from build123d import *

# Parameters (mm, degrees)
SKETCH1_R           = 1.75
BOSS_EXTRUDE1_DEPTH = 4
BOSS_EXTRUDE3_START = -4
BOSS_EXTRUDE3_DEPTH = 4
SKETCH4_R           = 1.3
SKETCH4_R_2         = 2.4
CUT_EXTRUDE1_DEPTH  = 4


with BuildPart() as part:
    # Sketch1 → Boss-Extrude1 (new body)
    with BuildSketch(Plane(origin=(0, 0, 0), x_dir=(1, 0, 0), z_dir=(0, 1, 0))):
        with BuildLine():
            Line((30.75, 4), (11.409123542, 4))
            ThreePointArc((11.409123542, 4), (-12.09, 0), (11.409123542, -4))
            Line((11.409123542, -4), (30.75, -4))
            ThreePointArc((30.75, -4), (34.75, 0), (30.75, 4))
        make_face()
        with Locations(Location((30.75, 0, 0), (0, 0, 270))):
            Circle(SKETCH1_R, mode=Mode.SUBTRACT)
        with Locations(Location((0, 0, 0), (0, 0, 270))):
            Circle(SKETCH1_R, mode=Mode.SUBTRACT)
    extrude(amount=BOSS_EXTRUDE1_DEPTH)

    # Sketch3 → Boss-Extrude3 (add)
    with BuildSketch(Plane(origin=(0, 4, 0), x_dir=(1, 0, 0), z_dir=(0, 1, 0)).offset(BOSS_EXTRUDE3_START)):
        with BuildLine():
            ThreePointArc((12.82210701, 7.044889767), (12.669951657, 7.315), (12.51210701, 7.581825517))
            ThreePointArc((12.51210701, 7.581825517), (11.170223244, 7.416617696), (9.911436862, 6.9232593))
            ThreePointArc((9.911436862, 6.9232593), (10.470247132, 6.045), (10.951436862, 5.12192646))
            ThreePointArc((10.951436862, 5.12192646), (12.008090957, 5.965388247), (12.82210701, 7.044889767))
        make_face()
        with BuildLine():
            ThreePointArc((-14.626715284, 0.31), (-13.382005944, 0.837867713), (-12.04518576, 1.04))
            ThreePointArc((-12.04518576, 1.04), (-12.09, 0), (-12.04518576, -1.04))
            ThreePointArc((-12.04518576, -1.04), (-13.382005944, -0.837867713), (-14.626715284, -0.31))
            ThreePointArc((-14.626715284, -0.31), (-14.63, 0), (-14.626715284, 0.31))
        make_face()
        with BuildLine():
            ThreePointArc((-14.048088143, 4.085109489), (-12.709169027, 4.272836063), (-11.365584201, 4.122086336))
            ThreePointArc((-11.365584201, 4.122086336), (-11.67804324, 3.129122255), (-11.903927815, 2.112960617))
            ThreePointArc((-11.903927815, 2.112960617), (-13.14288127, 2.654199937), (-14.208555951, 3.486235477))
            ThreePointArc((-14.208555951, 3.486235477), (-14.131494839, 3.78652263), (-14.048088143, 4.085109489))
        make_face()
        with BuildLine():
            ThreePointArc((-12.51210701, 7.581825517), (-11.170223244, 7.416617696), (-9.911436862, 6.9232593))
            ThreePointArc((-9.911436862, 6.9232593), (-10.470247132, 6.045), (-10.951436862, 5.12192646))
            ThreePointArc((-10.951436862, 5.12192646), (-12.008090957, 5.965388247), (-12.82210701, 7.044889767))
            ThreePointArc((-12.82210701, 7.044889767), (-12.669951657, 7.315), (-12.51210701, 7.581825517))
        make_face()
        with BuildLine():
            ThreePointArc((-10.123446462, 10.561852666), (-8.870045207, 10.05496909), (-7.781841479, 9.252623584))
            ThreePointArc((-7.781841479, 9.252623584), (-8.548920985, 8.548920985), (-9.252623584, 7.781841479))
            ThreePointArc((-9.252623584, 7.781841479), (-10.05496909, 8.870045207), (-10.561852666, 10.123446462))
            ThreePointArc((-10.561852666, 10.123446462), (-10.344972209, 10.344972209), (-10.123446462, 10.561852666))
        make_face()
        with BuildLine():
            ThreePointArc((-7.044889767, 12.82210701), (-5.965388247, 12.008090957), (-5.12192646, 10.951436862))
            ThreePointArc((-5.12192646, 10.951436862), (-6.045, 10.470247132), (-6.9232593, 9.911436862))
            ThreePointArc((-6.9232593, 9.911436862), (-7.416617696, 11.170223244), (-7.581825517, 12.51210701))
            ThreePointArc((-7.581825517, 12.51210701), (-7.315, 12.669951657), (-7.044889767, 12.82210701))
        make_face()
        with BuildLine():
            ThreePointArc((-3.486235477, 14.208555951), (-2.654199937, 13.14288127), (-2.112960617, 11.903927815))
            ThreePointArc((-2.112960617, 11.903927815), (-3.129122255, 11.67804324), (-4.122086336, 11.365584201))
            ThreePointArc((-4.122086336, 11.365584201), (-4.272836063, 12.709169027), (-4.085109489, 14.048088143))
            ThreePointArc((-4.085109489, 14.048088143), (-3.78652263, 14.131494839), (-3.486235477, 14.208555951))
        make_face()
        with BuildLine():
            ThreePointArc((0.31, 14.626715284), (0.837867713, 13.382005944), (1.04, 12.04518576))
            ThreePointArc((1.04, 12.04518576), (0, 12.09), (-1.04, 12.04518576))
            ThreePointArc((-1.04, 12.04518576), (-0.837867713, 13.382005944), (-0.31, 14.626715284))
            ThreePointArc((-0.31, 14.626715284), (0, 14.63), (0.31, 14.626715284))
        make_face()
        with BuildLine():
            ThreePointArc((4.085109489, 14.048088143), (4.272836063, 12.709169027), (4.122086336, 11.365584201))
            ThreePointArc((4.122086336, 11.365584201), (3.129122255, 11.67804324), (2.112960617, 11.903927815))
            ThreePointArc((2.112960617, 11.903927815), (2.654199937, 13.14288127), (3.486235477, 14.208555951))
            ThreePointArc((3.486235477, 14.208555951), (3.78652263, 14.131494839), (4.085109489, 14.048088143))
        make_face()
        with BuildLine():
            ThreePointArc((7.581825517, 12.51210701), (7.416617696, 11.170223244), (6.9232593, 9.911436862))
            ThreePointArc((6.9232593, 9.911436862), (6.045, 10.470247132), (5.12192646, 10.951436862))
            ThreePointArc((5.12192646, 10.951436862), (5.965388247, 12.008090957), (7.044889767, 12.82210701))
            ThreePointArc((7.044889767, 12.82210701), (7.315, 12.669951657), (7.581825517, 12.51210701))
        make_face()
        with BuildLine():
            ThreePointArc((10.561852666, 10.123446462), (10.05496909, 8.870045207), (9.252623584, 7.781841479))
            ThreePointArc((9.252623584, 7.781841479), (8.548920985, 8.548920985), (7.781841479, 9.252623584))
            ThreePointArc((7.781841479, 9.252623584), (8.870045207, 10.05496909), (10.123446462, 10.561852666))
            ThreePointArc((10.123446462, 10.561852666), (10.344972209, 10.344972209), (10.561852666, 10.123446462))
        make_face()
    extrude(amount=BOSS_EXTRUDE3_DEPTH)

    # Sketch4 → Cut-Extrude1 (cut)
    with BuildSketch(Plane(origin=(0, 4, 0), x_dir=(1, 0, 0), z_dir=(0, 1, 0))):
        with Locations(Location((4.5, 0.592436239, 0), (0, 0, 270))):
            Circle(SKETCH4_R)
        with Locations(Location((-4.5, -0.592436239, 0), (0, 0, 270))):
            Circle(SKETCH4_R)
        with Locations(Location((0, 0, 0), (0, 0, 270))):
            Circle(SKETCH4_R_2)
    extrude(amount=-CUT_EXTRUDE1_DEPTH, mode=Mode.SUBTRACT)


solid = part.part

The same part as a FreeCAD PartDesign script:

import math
import FreeCAD as App
import Part
import Sketcher
from FreeCAD import Vector
Q = App.Units.Quantity

doc = App.newDocument("Part")
params = doc.addObject("Spreadsheet::Sheet", "Params")
for row, (alias, value) in enumerate([
    ("sketch1_radius", "4 mm"),
    ("sketch1_diameter", "3.5 mm"),
    ("sketch1_radius2", "12.09 mm"),
    ("pad1_length", "4 mm"),
    ("sketch2_radius", "5.4 mm"),
    ("sketch2_radius2", "14.630002 mm"),
    ("sketch2_radius3", "12.09 mm"),
    ("pad2_length", "4 mm"),
    ("sketch3_diameter", "2.6 mm"),
    ("sketch3_diameter2", "4.8 mm"),
    ("pocket1_length", "4 mm"),
], start=1):
    params.set(f"A{row}", alias)
    params.set(f"B{row}", "=" + value)
    params.setAlias(f"B{row}", alias)

body = doc.addObject("PartDesign::Body", "Body")

# Sketch on XZ plane
sketch1 = body.newObject("Sketcher::SketchObject", "Sketch")
sketch1.AttachmentSupport = (doc.getObject("XZ_Plane"), [""])
sketch1.MapMode = "FlatFace"
sketch1.addGeometry([
    Part.LineSegment(Vector(30.75, -4, 0), Vector(11.409124, -4, 0)),  # 0
    Part.ArcOfCircle(Part.Circle(Vector(0, 0, 0), Vector(0, 0, 1), 12.09), math.radians(19.320493), math.radians(340.679507)),  # 1
    Part.LineSegment(Vector(11.409124, 4, 0), Vector(30.75, 4, 0)),  # 2
    Part.ArcOfCircle(Part.Circle(Vector(30.75, 0, 0), Vector(0, 0, 1), 4), math.radians(-90), math.radians(90)),  # 3
    Part.Circle(Vector(0, 0, 0), Vector(0, 0, 1), 1.75),  # 4
    Part.Circle(Vector(30.75, 0, 0), Vector(0, 0, 1), 1.75),  # 5
], False)
sketch1.addConstraint([
    Sketcher.Constraint("Coincident", 0, 2, 1, 2),
    Sketcher.Constraint("Coincident", 1, 1, 2, 1),
    Sketcher.Constraint("Tangent", 2, 2, 3, 2),
    Sketcher.Constraint("Tangent", 3, 1, 0, 1),
    Sketcher.Constraint("Horizontal", 0),
    Sketcher.Constraint("Horizontal", 2),
    Sketcher.Constraint("Coincident", 1, 3, -1, 1),
    Sketcher.Constraint("Coincident", 4, 3, -1, 1),
    Sketcher.Constraint("Coincident", 5, 3, 3, 3),
    Sketcher.Constraint("Equal", 4, 5),
    Sketcher.Constraint("PointOnObject", 3, 3, -1),
    Sketcher.Constraint("Radius", 3, Q("4 mm")),
    Sketcher.Constraint("Diameter", 4, Q("3.5 mm")),
    Sketcher.Constraint("Radius", 1, Q("12.09 mm")),
    Sketcher.Constraint("DistanceX", -1, 1, 3, 3, Q("30.75 mm")),
])
sketch1.setExpression("Constraints[11]", "Params.sketch1_radius")
sketch1.setExpression("Constraints[12]", "Params.sketch1_diameter")
sketch1.setExpression("Constraints[13]", "Params.sketch1_radius2")
pad1 = body.newObject("PartDesign::Pad", "Pad")
pad1.Profile = sketch1
pad1.setExpression("Length", "Params.pad1_length")
pad1.Reversed = True

# Sketch on XZ plane
sketch2 = body.newObject("Sketcher::SketchObject", "Sketch001")
sketch2.AttachmentSupport = (doc.getObject("XZ_Plane"), [""])
sketch2.MapMode = "FlatFace"
sketch2.addGeometry([
    Part.ArcOfCircle(Part.Circle(Vector(-0.000002, 0.000001, 0), Vector(0, 0, 1), 14.630002), math.radians(-31.21415), math.radians(-28.78585)),  # 0
    Part.ArcOfCircle(Part.Circle(Vector(12.49582, -2.18185, 0), Vector(0, 0, 1), 5.4), math.radians(-118.593324), math.radians(-89.827194)),  # 1
    Part.ArcOfCircle(Part.Circle(Vector(0, 0, 0), Vector(0, 0, 1), 12.09), math.radians(-34.934768), math.radians(-25.065232)),  # 2
    Part.ArcOfCircle(Part.Circle(Vector(8.137448, -9.730773, 0), Vector(0, 0, 1), 5.4), math.radians(29.827194), math.radians(58.593324)),  # 3
    Part.ArcOfCircle(Part.Circle(Vector(-11.912623, 4.358373, 0), Vector(0, 0, 1), 5.4), math.radians(-120.172806), math.radians(-91.406676)),  # 4
    Part.ArcOfCircle(Part.Circle(Vector(0, 0, 0), Vector(0, 0, 1), 14.63), math.radians(178.78585), math.radians(181.21415)),  # 5
    Part.ArcOfCircle(Part.Circle(Vector(-11.912623, -4.358373, 0), Vector(0, 0, 1), 5.4), math.radians(91.406676), math.radians(120.172806)),  # 6
    Part.ArcOfCircle(Part.Circle(Vector(0, 0, 0), Vector(0, 0, 1), 12.09), math.radians(175.065232), math.radians(184.934768)),  # 7
    Part.ArcOfCircle(Part.Circle(Vector(-12.63474, 1.126651, 0), Vector(0, 0, 1), 5.4), math.radians(-105.172806), math.radians(-76.406676)),  # 8
    Part.ArcOfCircle(Part.Circle(Vector(0, 0, 0), Vector(0, 0, 1), 14.63), math.radians(-166.21415), math.radians(-163.78585)),  # 9
    Part.ArcOfCircle(Part.Circle(Vector(-10.37868, -7.293078, 0), Vector(0, 0, 1), 5.4), math.radians(106.406676), math.radians(135.172806)),  # 10
    Part.ArcOfCircle(Part.Circle(Vector(0, 0, 0), Vector(0, 0, 1), 12.09), math.radians(-169.934768), math.radians(-160.065232)),  # 11
    Part.ArcOfCircle(Part.Circle(Vector(-12.49582, -2.18185, 0), Vector(0, 0, 1), 5.4), math.radians(-90.172806), math.radians(-61.406676)),  # 12
    Part.ArcOfCircle(Part.Circle(Vector(0.000002, 0.000001, 0), Vector(0, 0, 1), 14.630002), math.radians(-151.21415), math.radians(-148.78585)),  # 13
    Part.ArcOfCircle(Part.Circle(Vector(-8.137448, -9.730773, 0), Vector(0, 0, 1), 5.4), math.radians(121.406676), math.radians(150.172806)),  # 14
    Part.ArcOfCircle(Part.Circle(Vector(0, 0, 0), Vector(0, 0, 1), 12.09), math.radians(-154.934768), math.radians(-145.065232)),  # 15
    Part.ArcOfCircle(Part.Circle(Vector(-11.505331, -5.341662, 0), Vector(0, 0, 1), 5.4), math.radians(-75.172806), math.radians(-46.406676)),  # 16
    Part.ArcOfCircle(Part.Circle(Vector(0, 0, 0), Vector(0, 0, 1), 14.63), math.radians(-136.21415), math.radians(-133.78585)),  # 17
    Part.ArcOfCircle(Part.Circle(Vector(-5.341662, -11.505331, 0), Vector(0, 0, 1), 5.4), math.radians(136.406676), math.radians(165.172806)),  # 18
    Part.ArcOfCircle(Part.Circle(Vector(0, 0, 0), Vector(0, 0, 1), 12.09), math.radians(-139.934768), math.radians(-130.065232)),  # 19
    Part.ArcOfCircle(Part.Circle(Vector(-9.730773, -8.137448, 0), Vector(0, 0, 1), 5.4), math.radians(-60.172806), math.radians(-31.406676)),  # 20
    Part.ArcOfCircle(Part.Circle(Vector(0.000001, 0.000002, 0), Vector(0, 0, 1), 14.630002), math.radians(-121.21415), math.radians(-118.78585)),  # 21
    Part.ArcOfCircle(Part.Circle(Vector(-2.18185, -12.49582, 0), Vector(0, 0, 1), 5.4), math.radians(151.406676), math.radians(180.172806)),  # 22
    Part.ArcOfCircle(Part.Circle(Vector(0, 0, 0), Vector(0, 0, 1), 12.09), math.radians(-124.934768), math.radians(-115.065232)),  # 23
    Part.ArcOfCircle(Part.Circle(Vector(-7.293078, -10.37868, 0), Vector(0, 0, 1), 5.4), math.radians(-45.172806), math.radians(-16.406676)),  # 24
    Part.ArcOfCircle(Part.Circle(Vector(0, 0, 0), Vector(0, 0, 1), 14.63), math.radians(-106.21415), math.radians(-103.78585)),  # 25
    Part.ArcOfCircle(Part.Circle(Vector(1.126651, -12.63474, 0), Vector(0, 0, 1), 5.4), math.radians(166.406676), math.radians(195.172806)),  # 26
    Part.ArcOfCircle(Part.Circle(Vector(0, 0, 0), Vector(0, 0, 1), 12.09), math.radians(-109.934768), math.radians(-100.065232)),  # 27
    Part.ArcOfCircle(Part.Circle(Vector(-4.358373, -11.912623, 0), Vector(0, 0, 1), 5.4), math.radians(-30.172806), math.radians(-1.406676)),  # 28
    Part.ArcOfCircle(Part.Circle(Vector(0, 0, 0), Vector(0, 0, 1), 14.63), math.radians(-91.21415), math.radians(-88.78585)),  # 29
    Part.ArcOfCircle(Part.Circle(Vector(4.358373, -11.912623, 0), Vector(0, 0, 1), 5.4), math.radians(-178.593324), math.radians(-149.827194)),  # 30
    Part.ArcOfCircle(Part.Circle(Vector(0, 0, 0), Vector(0, 0, 1), 12.09), math.radians(-94.934768), math.radians(-85.065232)),  # 31
    Part.ArcOfCircle(Part.Circle(Vector(-1.126651, -12.63474, 0), Vector(0, 0, 1), 5.4), math.radians(-15.172806), math.radians(13.593324)),  # 32
    Part.ArcOfCircle(Part.Circle(Vector(0, 0, 0), Vector(0, 0, 1), 14.63), math.radians(-76.21415), math.radians(-73.78585)),  # 33
    Part.ArcOfCircle(Part.Circle(Vector(7.293078, -10.37868, 0), Vector(0, 0, 1), 5.4), math.radians(-163.593324), math.radians(-134.827194)),  # 34
    Part.ArcOfCircle(Part.Circle(Vector(0, 0, 0), Vector(0, 0, 1), 12.09), math.radians(-79.934768), math.radians(-70.065232)),  # 35
    Part.ArcOfCircle(Part.Circle(Vector(2.18185, -12.49582, 0), Vector(0, 0, 1), 5.4), math.radians(-0.172806), math.radians(28.593324)),  # 36
    Part.ArcOfCircle(Part.Circle(Vector(-0.000001, 0.000002, 0), Vector(0, 0, 1), 14.630002), math.radians(-61.21415), math.radians(-58.78585)),  # 37
    Part.ArcOfCircle(Part.Circle(Vector(9.730773, -8.137448, 0), Vector(0, 0, 1), 5.4), math.radians(-148.593324), math.radians(-119.827194)),  # 38
    Part.ArcOfCircle(Part.Circle(Vector(0, 0, 0), Vector(0, 0, 1), 12.09), math.radians(-64.934768), math.radians(-55.065232)),  # 39
    Part.ArcOfCircle(Part.Circle(Vector(5.341662, -11.505331, 0), Vector(0, 0, 1), 5.4), math.radians(14.827194), math.radians(43.593324)),  # 40
    Part.ArcOfCircle(Part.Circle(Vector(0, 0, 0), Vector(0, 0, 1), 14.63), math.radians(-46.21415), math.radians(-43.78585)),  # 41
    Part.ArcOfCircle(Part.Circle(Vector(11.505331, -5.341662, 0), Vector(0, 0, 1), 5.4), math.radians(-133.593324), math.radians(-104.827194)),  # 42
    Part.ArcOfCircle(Part.Circle(Vector(0, 0, 0), Vector(0, 0, 1), 12.09), math.radians(-49.934768), math.radians(-40.065232)),  # 43
], False)
sketch2.addConstraint([
    Sketcher.Constraint("Coincident", 0, 1, 1, 2),
    Sketcher.Constraint("Coincident", 1, 1, 2, 1),
    Sketcher.Constraint("Coincident", 2, 2, 3, 2),
    Sketcher.Constraint("Coincident", 3, 1, 0, 2),
    Sketcher.Constraint("Coincident", 4, 1, 5, 2),
    Sketcher.Constraint("Coincident", 5, 1, 6, 2),
    Sketcher.Constraint("Coincident", 6, 1, 7, 1),
    Sketcher.Constraint("Coincident", 7, 2, 4, 2),
    Sketcher.Constraint("Coincident", 8, 1, 9, 2),
    Sketcher.Constraint("Coincident", 9, 1, 10, 2),
    Sketcher.Constraint("Coincident", 10, 1, 11, 1),
    Sketcher.Constraint("Coincident", 11, 2, 8, 2),
    Sketcher.Constraint("Coincident", 12, 1, 13, 2),
    Sketcher.Constraint("Coincident", 13, 1, 14, 2),
    Sketcher.Constraint("Coincident", 14, 1, 15, 1),
    Sketcher.Constraint("Coincident", 15, 2, 12, 2),
    Sketcher.Constraint("Coincident", 16, 1, 17, 2),
    Sketcher.Constraint("Coincident", 17, 1, 18, 2),
    Sketcher.Constraint("Coincident", 18, 1, 19, 1),
    Sketcher.Constraint("Coincident", 19, 2, 16, 2),
    Sketcher.Constraint("Coincident", 20, 1, 21, 2),
    Sketcher.Constraint("Coincident", 21, 1, 22, 2),
    Sketcher.Constraint("Coincident", 22, 1, 23, 1),
    Sketcher.Constraint("Coincident", 23, 2, 20, 2),
    Sketcher.Constraint("Coincident", 24, 1, 25, 2),
    Sketcher.Constraint("Coincident", 25, 1, 26, 2),
    Sketcher.Constraint("Coincident", 26, 1, 27, 1),
    Sketcher.Constraint("Coincident", 27, 2, 24, 2),
    Sketcher.Constraint("Coincident", 28, 1, 29, 2),
    Sketcher.Constraint("Coincident", 29, 1, 30, 2),
    Sketcher.Constraint("Coincident", 30, 1, 31, 1),
    Sketcher.Constraint("Coincident", 31, 2, 28, 2),
    Sketcher.Constraint("Coincident", 32, 1, 33, 2),
    Sketcher.Constraint("Coincident", 33, 1, 34, 2),
    Sketcher.Constraint("Coincident", 34, 1, 35, 1),
    Sketcher.Constraint("Coincident", 35, 2, 32, 2),
    Sketcher.Constraint("Coincident", 36, 1, 37, 2),
    Sketcher.Constraint("Coincident", 37, 1, 38, 2),
    Sketcher.Constraint("Coincident", 38, 1, 39, 1),
    Sketcher.Constraint("Coincident", 39, 2, 36, 2),
    Sketcher.Constraint("Coincident", 40, 1, 41, 2),
    Sketcher.Constraint("Coincident", 41, 1, 42, 2),
    Sketcher.Constraint("Coincident", 42, 1, 43, 1),
    Sketcher.Constraint("Coincident", 43, 2, 40, 2),
    Sketcher.Constraint("Coincident", 0, 3, -1, 1),
    Sketcher.Constraint("Coincident", 2, 3, -1, 1),
    Sketcher.Constraint("Coincident", 5, 3, -1, 1),
    Sketcher.Constraint("Coincident", 7, 3, -1, 1),
    Sketcher.Constraint("Coincident", 9, 3, -1, 1),
    Sketcher.Constraint("Coincident", 11, 3, -1, 1),
    Sketcher.Constraint("Coincident", 13, 3, -1, 1),
    Sketcher.Constraint("Coincident", 15, 3, -1, 1),
    Sketcher.Constraint("Coincident", 17, 3, -1, 1),
    Sketcher.Constraint("Coincident", 19, 3, -1, 1),
    Sketcher.Constraint("Coincident", 21, 3, -1, 1),
    Sketcher.Constraint("Coincident", 23, 3, -1, 1),
    Sketcher.Constraint("Coincident", 25, 3, -1, 1),
    Sketcher.Constraint("Coincident", 27, 3, -1, 1),
    Sketcher.Constraint("Coincident", 29, 3, -1, 1),
    Sketcher.Constraint("Coincident", 31, 3, -1, 1),
    Sketcher.Constraint("Coincident", 33, 3, -1, 1),
    Sketcher.Constraint("Coincident", 35, 3, -1, 1),
    Sketcher.Constraint("Coincident", 37, 3, -1, 1),
    Sketcher.Constraint("Coincident", 39, 3, -1, 1),
    Sketcher.Constraint("Coincident", 41, 3, -1, 1),
    Sketcher.Constraint("Coincident", 43, 3, -1, 1),
    Sketcher.Constraint("Equal", 1, 3),
    Sketcher.Constraint("Equal", 3, 4),
    Sketcher.Constraint("Equal", 0, 5),
    Sketcher.Constraint("Equal", 4, 6),
    Sketcher.Constraint("Equal", 2, 7),
    Sketcher.Constraint("Equal", 6, 8),
    Sketcher.Constraint("Equal", 5, 9),
    Sketcher.Constraint("Equal", 8, 10),
    Sketcher.Constraint("Equal", 7, 11),
    Sketcher.Constraint("Equal", 10, 12),
    Sketcher.Constraint("Equal", 9, 13),
    Sketcher.Constraint("Equal", 12, 14),
    Sketcher.Constraint("Equal", 11, 15),
    Sketcher.Constraint("Equal", 14, 16),
    Sketcher.Constraint("Equal", 9, 17),
    Sketcher.Constraint("Equal", 16, 18),
    Sketcher.Constraint("Equal", 15, 19),
    Sketcher.Constraint("Equal", 18, 20),
    Sketcher.Constraint("Equal", 13, 21),
    Sketcher.Constraint("Equal", 20, 22),
    Sketcher.Constraint("Equal", 19, 23),
    Sketcher.Constraint("Equal", 22, 24),
    Sketcher.Constraint("Equal", 21, 25),
    Sketcher.Constraint("Equal", 24, 26),
    Sketcher.Constraint("Equal", 23, 27),
    Sketcher.Constraint("Equal", 26, 28),
    Sketcher.Constraint("Equal", 25, 29),
    Sketcher.Constraint("Equal", 28, 30),
    Sketcher.Constraint("Equal", 27, 31),
    Sketcher.Constraint("Equal", 30, 32),
    Sketcher.Constraint("Equal", 29, 33),
    Sketcher.Constraint("Equal", 32, 34),
    Sketcher.Constraint("Equal", 31, 35),
    Sketcher.Constraint("Equal", 34, 36),
    Sketcher.Constraint("Equal", 33, 37),
    Sketcher.Constraint("Equal", 36, 38),
    Sketcher.Constraint("Equal", 35, 39),
    Sketcher.Constraint("Equal", 38, 40),
    Sketcher.Constraint("Equal", 33, 41),
    Sketcher.Constraint("Equal", 40, 42),
    Sketcher.Constraint("Equal", 39, 43),
    Sketcher.Constraint("Symmetric", 1, 3, 12, 3, -2),
    Sketcher.Constraint("Symmetric", 3, 3, 14, 3, -2),
    Sketcher.Constraint("Symmetric", 28, 3, 30, 3, -2),
    Sketcher.Constraint("Symmetric", 26, 3, 32, 3, -2),
    Sketcher.Constraint("Symmetric", 24, 3, 34, 3, -2),
    Sketcher.Constraint("Symmetric", 22, 3, 36, 3, -2),
    Sketcher.Constraint("Symmetric", 20, 3, 38, 3, -2),
    Sketcher.Constraint("Symmetric", 18, 3, 40, 3, -2),
    Sketcher.Constraint("Symmetric", 16, 3, 42, 3, -2),
    Sketcher.Constraint("Symmetric", 4, 3, 6, 3, -1),
    Sketcher.Constraint("Radius", 1, Q("5.4 mm")),
    Sketcher.Constraint("Radius", 0, Q("14.630002 mm")),
    Sketcher.Constraint("Radius", 2, Q("12.09 mm")),
    Sketcher.Constraint("DistanceY", 4, 1, -1, 1, Q("0.31 mm")),
    Sketcher.Constraint("DistanceY", -1, 1, 6, 1, Q("1.04 mm")),
    Sketcher.Constraint("DistanceX", -1, 1, 28, 1, Q("0.31 mm")),
    Sketcher.Constraint("DistanceX", 30, 1, -1, 1, Q("1.04 mm")),
    Sketcher.Constraint("DistanceX", -1, 1, 1, 3, Q("12.49582 mm")),
    Sketcher.Constraint("DistanceY", 1, 3, -1, 1, Q("2.18185 mm")),
    Sketcher.Constraint("DistanceX", 8, 3, -1, 1, Q("12.63474 mm")),
    Sketcher.Constraint("DistanceY", -1, 1, 8, 3, Q("1.126651 mm")),
    Sketcher.Constraint("DistanceX", 10, 3, -1, 1, Q("10.37868 mm")),
    Sketcher.Constraint("DistanceY", 10, 3, -1, 1, Q("7.293078 mm")),
    Sketcher.Constraint("DistanceX", 16, 3, -1, 1, Q("11.505331 mm")),
    Sketcher.Constraint("DistanceY", 16, 3, -1, 1, Q("5.341662 mm")),
    Sketcher.Constraint("DistanceX", 18, 3, -1, 1, Q("5.341662 mm")),
    Sketcher.Constraint("DistanceY", 18, 3, -1, 1, Q("11.505331 mm")),
    Sketcher.Constraint("DistanceX", 22, 3, -1, 1, Q("2.18185 mm")),
    Sketcher.Constraint("DistanceY", 22, 3, -1, 1, Q("12.49582 mm")),
    Sketcher.Constraint("DistanceX", 24, 3, -1, 1, Q("7.293078 mm")),
    Sketcher.Constraint("DistanceY", 24, 3, -1, 1, Q("10.37868 mm")),
    Sketcher.Constraint("DistanceX", -1, 1, 26, 3, Q("1.126651 mm")),
    Sketcher.Constraint("DistanceY", 26, 3, -1, 1, Q("12.63474 mm")),
    Sketcher.Constraint("DistanceY", 3, 1, -1, 1, Q("7.04489 mm")),
    Sketcher.Constraint("DistanceX", 20, 1, -1, 1, Q("7.04489 mm")),
    Sketcher.Constraint("DistanceX", -1, 1, 3, 3, Q("8.137448 mm")),
    Sketcher.Constraint("DistanceX", 20, 3, -1, 1, Q("9.730773 mm")),
])
sketch2.setExpression("Constraints[117]", "Params.sketch2_radius")
sketch2.setExpression("Constraints[118]", "Params.sketch2_radius2")
sketch2.setExpression("Constraints[119]", "Params.sketch2_radius3")
pad2 = body.newObject("PartDesign::Pad", "Pad001")
pad2.Profile = sketch2
pad2.setExpression("Length", "Params.pad2_length")
pad2.Reversed = True

# Sketch on XZ plane
sketch3 = body.newObject("Sketcher::SketchObject", "Sketch002")
sketch3.AttachmentSupport = (doc.getObject("XZ_Plane"), [""])
sketch3.MapMode = "FlatFace"
sketch3.AttachmentOffset = App.Placement(Vector(0, 0, -4), App.Rotation())
sketch3.addGeometry([
    Part.Circle(Vector(4.5, -0.592436, 0), Vector(0, 0, 1), 1.3),
    Part.Circle(Vector(-4.5, 0.592436, 0), Vector(0, 0, 1), 1.3),
    Part.Circle(Vector(0, 0, 0), Vector(0, 0, 1), 2.4),
], False)
sketch3.addConstraint([
    Sketcher.Constraint("Coincident", 2, 3, -1, 1),
    Sketcher.Constraint("Equal", 0, 1),
    Sketcher.Constraint("Symmetric", 0, 3, 1, 3, -1, 1),
    Sketcher.Constraint("Diameter", 0, Q("2.6 mm")),
    Sketcher.Constraint("Diameter", 2, Q("4.8 mm")),
    Sketcher.Constraint("DistanceX", 1, 3, 0, 3, Q("9 mm")),
    Sketcher.Constraint("DistanceY", 0, 3, -1, 1, Q("0.592436 mm")),
])
sketch3.setExpression("Constraints[3]", "Params.sketch3_diameter")
sketch3.setExpression("Constraints[4]", "Params.sketch3_diameter2")
pocket1 = body.newObject("PartDesign::Pocket", "Pocket")
pocket1.Profile = sketch3
pocket1.setExpression("Length", "Params.pocket1_length")
pocket1.Reversed = True

doc.recompute()
